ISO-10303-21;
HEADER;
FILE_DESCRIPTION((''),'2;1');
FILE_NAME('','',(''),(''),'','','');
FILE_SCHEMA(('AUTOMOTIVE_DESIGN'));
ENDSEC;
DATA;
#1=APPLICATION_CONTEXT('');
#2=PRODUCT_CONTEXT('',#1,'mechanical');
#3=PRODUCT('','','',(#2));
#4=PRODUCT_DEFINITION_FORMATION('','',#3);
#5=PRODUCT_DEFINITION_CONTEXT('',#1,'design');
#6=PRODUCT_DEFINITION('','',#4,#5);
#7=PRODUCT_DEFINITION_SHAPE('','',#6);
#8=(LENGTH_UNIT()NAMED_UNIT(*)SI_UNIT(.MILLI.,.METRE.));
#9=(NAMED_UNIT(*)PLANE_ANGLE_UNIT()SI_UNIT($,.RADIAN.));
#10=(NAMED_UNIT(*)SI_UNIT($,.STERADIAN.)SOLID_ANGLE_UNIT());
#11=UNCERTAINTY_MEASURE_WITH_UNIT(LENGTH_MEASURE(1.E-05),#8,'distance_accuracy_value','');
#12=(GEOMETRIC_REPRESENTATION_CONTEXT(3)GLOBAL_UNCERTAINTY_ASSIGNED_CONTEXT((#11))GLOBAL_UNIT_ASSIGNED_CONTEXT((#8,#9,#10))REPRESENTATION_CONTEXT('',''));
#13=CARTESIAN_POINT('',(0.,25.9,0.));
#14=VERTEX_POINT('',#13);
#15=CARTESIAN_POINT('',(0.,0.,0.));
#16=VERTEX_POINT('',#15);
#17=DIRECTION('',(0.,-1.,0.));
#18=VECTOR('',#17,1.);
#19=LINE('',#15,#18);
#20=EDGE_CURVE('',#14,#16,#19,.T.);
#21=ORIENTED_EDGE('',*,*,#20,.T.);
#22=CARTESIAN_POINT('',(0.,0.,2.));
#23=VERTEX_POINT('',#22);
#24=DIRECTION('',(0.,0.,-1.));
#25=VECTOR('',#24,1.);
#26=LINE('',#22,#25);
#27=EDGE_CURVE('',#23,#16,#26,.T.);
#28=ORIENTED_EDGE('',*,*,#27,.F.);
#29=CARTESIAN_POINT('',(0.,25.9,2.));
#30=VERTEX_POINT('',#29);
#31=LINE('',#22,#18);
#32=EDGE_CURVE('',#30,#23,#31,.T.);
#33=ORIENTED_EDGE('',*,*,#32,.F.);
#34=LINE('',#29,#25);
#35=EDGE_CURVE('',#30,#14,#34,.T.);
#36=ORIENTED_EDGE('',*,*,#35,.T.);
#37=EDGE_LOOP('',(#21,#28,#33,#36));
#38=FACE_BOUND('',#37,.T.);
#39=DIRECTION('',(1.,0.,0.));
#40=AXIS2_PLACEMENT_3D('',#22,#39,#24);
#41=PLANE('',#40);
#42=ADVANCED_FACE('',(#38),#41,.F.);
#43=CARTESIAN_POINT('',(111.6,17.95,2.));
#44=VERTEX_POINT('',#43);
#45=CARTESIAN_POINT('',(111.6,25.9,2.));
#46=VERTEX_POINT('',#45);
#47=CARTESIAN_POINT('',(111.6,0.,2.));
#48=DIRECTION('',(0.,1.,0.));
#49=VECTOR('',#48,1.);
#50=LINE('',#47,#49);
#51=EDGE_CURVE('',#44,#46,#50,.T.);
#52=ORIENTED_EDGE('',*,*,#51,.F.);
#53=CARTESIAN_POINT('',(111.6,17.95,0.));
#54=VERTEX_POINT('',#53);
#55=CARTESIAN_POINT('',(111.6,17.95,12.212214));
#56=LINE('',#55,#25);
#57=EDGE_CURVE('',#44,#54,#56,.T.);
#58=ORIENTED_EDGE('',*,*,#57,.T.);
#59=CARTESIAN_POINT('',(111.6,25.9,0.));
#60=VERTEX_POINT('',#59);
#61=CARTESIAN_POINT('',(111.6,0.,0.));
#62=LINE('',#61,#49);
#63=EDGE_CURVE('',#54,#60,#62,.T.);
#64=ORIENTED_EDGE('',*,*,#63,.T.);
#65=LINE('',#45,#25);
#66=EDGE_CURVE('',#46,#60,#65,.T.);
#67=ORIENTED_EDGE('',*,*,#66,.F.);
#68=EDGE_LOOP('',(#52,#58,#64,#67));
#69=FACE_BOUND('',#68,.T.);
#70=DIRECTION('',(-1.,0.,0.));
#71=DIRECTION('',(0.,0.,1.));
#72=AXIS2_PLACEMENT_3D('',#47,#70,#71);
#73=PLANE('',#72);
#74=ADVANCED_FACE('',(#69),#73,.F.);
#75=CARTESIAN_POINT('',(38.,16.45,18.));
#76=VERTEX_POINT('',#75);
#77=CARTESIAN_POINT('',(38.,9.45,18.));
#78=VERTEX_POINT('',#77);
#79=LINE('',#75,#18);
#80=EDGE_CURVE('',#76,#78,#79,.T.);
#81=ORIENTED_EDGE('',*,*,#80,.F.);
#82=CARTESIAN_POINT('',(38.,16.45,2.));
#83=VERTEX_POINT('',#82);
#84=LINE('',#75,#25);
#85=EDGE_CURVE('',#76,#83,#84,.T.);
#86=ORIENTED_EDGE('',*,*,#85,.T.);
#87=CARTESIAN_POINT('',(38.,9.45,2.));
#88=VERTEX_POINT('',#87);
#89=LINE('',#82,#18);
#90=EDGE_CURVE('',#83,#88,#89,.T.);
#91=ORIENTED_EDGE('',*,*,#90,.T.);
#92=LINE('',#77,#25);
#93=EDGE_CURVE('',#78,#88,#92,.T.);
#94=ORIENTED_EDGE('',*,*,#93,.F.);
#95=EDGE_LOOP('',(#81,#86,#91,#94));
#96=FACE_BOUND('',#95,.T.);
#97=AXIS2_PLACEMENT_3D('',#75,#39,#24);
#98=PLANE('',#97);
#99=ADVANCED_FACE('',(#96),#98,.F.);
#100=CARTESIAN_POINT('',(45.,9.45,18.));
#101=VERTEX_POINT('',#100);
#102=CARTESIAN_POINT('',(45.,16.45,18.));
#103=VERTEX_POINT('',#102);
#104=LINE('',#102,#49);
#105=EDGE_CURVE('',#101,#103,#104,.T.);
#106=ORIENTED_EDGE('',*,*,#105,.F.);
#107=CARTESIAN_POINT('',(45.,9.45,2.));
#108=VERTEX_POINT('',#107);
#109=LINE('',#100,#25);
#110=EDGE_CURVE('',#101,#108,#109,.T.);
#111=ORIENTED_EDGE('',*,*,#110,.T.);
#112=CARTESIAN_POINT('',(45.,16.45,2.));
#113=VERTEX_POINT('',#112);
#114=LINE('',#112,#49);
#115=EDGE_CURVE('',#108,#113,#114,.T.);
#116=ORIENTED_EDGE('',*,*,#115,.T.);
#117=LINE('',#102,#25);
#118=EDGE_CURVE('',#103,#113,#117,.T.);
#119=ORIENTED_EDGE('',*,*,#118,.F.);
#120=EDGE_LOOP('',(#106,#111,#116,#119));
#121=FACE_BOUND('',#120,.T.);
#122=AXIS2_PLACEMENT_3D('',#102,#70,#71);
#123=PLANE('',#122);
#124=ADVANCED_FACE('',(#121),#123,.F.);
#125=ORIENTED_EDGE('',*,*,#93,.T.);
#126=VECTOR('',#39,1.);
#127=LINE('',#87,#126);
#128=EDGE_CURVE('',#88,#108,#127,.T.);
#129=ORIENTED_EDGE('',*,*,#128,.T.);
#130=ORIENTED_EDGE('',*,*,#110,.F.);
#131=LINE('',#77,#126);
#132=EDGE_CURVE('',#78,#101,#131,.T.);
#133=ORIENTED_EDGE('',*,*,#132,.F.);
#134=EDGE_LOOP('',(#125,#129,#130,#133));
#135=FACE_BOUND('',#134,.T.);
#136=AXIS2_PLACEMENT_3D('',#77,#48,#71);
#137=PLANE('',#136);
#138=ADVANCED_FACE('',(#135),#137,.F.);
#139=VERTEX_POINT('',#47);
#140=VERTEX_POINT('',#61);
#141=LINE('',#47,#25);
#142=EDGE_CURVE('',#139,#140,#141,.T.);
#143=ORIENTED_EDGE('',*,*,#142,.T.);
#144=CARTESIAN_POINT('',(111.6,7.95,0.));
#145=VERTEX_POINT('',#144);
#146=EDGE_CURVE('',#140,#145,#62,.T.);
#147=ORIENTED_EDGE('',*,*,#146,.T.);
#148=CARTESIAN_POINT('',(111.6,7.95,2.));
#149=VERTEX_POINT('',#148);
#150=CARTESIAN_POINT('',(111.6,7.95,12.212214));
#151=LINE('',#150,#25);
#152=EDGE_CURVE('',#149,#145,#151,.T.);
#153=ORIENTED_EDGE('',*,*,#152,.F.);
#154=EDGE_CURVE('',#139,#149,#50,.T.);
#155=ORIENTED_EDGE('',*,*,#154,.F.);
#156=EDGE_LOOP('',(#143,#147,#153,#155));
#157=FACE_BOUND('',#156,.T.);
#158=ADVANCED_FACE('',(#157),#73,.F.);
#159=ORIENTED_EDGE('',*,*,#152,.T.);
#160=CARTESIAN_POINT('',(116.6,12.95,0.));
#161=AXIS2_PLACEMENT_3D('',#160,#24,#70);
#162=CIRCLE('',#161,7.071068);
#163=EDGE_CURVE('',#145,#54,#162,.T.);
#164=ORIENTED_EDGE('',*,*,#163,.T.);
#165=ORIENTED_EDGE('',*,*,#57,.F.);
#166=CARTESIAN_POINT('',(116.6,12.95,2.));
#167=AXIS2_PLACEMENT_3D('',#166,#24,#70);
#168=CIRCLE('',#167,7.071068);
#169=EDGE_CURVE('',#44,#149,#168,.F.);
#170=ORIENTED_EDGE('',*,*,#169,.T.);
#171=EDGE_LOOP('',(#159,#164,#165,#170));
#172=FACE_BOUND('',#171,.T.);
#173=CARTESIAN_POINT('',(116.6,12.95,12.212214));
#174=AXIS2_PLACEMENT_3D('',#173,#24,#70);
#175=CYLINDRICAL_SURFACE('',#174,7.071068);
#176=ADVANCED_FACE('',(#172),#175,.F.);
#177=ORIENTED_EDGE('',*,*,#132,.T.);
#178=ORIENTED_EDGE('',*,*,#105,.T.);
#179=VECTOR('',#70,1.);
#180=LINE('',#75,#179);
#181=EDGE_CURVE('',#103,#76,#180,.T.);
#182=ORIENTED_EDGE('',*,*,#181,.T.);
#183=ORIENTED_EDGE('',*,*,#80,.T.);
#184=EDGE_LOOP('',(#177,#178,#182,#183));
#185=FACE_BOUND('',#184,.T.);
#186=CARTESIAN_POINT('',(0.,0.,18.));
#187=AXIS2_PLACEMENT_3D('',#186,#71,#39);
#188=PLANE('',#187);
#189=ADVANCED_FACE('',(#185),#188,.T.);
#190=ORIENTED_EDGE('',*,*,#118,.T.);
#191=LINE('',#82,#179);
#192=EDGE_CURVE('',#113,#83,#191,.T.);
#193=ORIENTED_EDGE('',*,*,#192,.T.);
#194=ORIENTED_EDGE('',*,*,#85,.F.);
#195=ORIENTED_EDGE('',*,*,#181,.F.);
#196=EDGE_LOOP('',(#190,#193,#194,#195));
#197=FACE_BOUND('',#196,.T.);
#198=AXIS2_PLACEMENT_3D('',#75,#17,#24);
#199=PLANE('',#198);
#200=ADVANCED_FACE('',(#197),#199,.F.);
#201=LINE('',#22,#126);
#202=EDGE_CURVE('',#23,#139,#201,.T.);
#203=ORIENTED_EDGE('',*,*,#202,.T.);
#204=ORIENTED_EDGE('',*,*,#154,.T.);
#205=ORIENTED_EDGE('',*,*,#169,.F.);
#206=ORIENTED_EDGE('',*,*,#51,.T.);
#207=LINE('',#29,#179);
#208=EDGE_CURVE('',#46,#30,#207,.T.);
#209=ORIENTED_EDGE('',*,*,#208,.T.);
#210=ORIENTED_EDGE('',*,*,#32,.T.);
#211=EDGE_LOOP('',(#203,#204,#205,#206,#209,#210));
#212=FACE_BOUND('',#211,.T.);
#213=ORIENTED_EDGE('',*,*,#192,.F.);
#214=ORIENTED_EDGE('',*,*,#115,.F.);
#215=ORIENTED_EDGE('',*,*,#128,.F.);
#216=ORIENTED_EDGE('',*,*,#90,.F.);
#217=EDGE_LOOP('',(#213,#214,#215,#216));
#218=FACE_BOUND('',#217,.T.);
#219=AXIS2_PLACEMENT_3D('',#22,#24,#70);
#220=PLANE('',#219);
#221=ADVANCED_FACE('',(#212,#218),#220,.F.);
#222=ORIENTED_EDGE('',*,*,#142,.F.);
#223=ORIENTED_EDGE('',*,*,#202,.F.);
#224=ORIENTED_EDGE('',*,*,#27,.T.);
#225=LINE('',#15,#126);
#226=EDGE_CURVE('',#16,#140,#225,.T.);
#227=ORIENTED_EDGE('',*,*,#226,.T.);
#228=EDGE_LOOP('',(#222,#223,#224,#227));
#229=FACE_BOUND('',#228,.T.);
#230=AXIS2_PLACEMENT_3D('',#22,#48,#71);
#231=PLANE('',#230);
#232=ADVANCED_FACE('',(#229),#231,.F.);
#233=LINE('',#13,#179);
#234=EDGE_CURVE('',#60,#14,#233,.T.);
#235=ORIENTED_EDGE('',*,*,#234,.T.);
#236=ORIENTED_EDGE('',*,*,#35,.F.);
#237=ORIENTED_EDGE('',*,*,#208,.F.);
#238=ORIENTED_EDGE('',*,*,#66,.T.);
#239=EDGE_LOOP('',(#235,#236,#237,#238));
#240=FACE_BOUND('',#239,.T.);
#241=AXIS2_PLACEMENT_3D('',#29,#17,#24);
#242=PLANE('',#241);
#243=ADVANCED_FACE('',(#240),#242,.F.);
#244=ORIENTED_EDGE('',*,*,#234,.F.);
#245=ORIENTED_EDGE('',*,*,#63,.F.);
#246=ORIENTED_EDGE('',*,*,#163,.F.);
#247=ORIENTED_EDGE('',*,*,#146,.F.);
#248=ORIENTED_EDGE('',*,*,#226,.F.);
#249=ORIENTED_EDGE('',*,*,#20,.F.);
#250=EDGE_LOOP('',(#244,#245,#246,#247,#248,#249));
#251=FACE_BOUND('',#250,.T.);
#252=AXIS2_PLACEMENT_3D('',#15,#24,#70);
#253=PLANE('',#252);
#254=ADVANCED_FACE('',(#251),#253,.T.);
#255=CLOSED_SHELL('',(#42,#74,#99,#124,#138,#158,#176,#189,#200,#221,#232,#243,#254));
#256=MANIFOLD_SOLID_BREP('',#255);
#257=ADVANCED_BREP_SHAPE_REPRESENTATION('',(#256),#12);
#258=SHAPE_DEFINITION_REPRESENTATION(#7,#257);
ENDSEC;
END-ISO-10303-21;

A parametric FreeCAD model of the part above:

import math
import FreeCAD as App
import Part
import Sketcher
from FreeCAD import Vector

doc = App.newDocument("Part")
body = doc.addObject("PartDesign::Body", "Body")

# Sketch on XY plane
sketch1 = body.newObject("Sketcher::SketchObject", "Sketch")
sketch1.AttachmentSupport = (doc.getObject("XY_Plane"), [""])
sketch1.MapMode = "FlatFace"
sketch1.addGeometry([
    Part.LineSegment(Vector(0, 26, 0), Vector(0, 0, 0)),
    Part.LineSegment(Vector(0, 0, 0), Vector(112, 0, 0)),
    Part.LineSegment(Vector(112, 0, 0), Vector(112, 26, 0)),
    Part.LineSegment(Vector(112, 26, 0), Vector(0, 26, 0)),
], False)
sketch1.addConstraint([
    Sketcher.Constraint("Coincident", 0, 2, 1, 1),
    Sketcher.Constraint("Coincident", 1, 2, 2, 1),
    Sketcher.Constraint("Coincident", 2, 2, 3, 1),
    Sketcher.Constraint("Coincident", 3, 2, 0, 1),
    Sketcher.Constraint("Vertical", 0),
    Sketcher.Constraint("Horizontal", 1),
    Sketcher.Constraint("Vertical", 2),
    Sketcher.Constraint("Horizontal", 3),
    Sketcher.Constraint("Coincident", 0, 2, -1, 1),
    Sketcher.Constraint("DistanceX", 1, 1, 1, 2, 111.6),
    Sketcher.Constraint("DistanceY", 0, 2, 0, 1, 25.9),
])
pad1 = body.newObject("PartDesign::Pad", "Pad")
pad1.Profile = sketch1
pad1.Length = 2

# Sketch on XY plane
sketch2 = body.newObject("Sketcher::SketchObject", "Sketch001")
sketch2.AttachmentSupport = (doc.getObject("XY_Plane"), [""])
sketch2.MapMode = "FlatFace"
sketch2.AttachmentOffset = App.Placement(Vector(0, 0, 2), App.Rotation())
sketch2.addGeometry([
    Part.LineSegment(Vector(38, 16, 0), Vector(38, 9, 0)),
    Part.LineSegment(Vector(38, 9, 0), Vector(45, 9, 0)),
    Part.LineSegment(Vector(45, 9, 0), Vector(45, 16, 0)),
    Part.LineSegment(Vector(45, 16, 0), Vector(38, 16, 0)),
], False)
sketch2.addConstraint([
    Sketcher.Constraint("Coincident", 0, 2, 1, 1),
    Sketcher.Constraint("Coincident", 1, 2, 2, 1),
    Sketcher.Constraint("Coincident", 2, 2, 3, 1),
    Sketcher.Constraint("Coincident", 3, 2, 0, 1),
    Sketcher.Constraint("Vertical", 0),
    Sketcher.Constraint("Horizontal", 1),
    Sketcher.Constraint("Vertical", 2),
    Sketcher.Constraint("Horizontal", 3),
    Sketcher.Constraint("Equal", 3, 0),
    Sketcher.Constraint("DistanceX", 1, 1, 1, 2, 7.0),
    Sketcher.Constraint("DistanceX", -1, 1, 0, 2, 38.0),
    Sketcher.Constraint("DistanceY", -1, 1, 0, 2, 9.45),
])
pad2 = body.newObject("PartDesign::Pad", "Pad001")
pad2.Profile = sketch2
pad2.Length = 16

# Sketch on XY plane
sketch3 = body.newObject("Sketcher::SketchObject", "Sketch002")
sketch3.AttachmentSupport = (doc.getObject("XY_Plane"), [""])
sketch3.MapMode = "FlatFace"
sketch3.addGeometry([
    Part.LineSegment(Vector(112, 18, 0), Vector(112, 8, 0)),
    Part.ArcOfCircle(Part.Circle(Vector(117, 13, 0), Vector(0, 0, 1), 7), math.radians(135), math.radians(225)),
], False)
sketch3.addConstraint([
    Sketcher.Constraint("Coincident", 0, 1, 1, 1),
    Sketcher.Constraint("Coincident", 1, 2, 0, 2),
    Sketcher.Constraint("Vertical", 0),
    Sketcher.Constraint("DistanceY", 0, 2, 0, 1, 10.0),
    Sketcher.Constraint("DistanceX", 0, 1, 1, 3, 5.0),
    Sketcher.Constraint("DistanceX", -1, 1, 1, 3, 116.6),
    Sketcher.Constraint("DistanceY", -1, 1, 1, 3, 12.95),
])
pocket1 = body.newObject("PartDesign::Pocket", "Pocket")
pocket1.Profile = sketch3
pocket1.Length = 2
pocket1.Reversed = True

doc.recompute()
